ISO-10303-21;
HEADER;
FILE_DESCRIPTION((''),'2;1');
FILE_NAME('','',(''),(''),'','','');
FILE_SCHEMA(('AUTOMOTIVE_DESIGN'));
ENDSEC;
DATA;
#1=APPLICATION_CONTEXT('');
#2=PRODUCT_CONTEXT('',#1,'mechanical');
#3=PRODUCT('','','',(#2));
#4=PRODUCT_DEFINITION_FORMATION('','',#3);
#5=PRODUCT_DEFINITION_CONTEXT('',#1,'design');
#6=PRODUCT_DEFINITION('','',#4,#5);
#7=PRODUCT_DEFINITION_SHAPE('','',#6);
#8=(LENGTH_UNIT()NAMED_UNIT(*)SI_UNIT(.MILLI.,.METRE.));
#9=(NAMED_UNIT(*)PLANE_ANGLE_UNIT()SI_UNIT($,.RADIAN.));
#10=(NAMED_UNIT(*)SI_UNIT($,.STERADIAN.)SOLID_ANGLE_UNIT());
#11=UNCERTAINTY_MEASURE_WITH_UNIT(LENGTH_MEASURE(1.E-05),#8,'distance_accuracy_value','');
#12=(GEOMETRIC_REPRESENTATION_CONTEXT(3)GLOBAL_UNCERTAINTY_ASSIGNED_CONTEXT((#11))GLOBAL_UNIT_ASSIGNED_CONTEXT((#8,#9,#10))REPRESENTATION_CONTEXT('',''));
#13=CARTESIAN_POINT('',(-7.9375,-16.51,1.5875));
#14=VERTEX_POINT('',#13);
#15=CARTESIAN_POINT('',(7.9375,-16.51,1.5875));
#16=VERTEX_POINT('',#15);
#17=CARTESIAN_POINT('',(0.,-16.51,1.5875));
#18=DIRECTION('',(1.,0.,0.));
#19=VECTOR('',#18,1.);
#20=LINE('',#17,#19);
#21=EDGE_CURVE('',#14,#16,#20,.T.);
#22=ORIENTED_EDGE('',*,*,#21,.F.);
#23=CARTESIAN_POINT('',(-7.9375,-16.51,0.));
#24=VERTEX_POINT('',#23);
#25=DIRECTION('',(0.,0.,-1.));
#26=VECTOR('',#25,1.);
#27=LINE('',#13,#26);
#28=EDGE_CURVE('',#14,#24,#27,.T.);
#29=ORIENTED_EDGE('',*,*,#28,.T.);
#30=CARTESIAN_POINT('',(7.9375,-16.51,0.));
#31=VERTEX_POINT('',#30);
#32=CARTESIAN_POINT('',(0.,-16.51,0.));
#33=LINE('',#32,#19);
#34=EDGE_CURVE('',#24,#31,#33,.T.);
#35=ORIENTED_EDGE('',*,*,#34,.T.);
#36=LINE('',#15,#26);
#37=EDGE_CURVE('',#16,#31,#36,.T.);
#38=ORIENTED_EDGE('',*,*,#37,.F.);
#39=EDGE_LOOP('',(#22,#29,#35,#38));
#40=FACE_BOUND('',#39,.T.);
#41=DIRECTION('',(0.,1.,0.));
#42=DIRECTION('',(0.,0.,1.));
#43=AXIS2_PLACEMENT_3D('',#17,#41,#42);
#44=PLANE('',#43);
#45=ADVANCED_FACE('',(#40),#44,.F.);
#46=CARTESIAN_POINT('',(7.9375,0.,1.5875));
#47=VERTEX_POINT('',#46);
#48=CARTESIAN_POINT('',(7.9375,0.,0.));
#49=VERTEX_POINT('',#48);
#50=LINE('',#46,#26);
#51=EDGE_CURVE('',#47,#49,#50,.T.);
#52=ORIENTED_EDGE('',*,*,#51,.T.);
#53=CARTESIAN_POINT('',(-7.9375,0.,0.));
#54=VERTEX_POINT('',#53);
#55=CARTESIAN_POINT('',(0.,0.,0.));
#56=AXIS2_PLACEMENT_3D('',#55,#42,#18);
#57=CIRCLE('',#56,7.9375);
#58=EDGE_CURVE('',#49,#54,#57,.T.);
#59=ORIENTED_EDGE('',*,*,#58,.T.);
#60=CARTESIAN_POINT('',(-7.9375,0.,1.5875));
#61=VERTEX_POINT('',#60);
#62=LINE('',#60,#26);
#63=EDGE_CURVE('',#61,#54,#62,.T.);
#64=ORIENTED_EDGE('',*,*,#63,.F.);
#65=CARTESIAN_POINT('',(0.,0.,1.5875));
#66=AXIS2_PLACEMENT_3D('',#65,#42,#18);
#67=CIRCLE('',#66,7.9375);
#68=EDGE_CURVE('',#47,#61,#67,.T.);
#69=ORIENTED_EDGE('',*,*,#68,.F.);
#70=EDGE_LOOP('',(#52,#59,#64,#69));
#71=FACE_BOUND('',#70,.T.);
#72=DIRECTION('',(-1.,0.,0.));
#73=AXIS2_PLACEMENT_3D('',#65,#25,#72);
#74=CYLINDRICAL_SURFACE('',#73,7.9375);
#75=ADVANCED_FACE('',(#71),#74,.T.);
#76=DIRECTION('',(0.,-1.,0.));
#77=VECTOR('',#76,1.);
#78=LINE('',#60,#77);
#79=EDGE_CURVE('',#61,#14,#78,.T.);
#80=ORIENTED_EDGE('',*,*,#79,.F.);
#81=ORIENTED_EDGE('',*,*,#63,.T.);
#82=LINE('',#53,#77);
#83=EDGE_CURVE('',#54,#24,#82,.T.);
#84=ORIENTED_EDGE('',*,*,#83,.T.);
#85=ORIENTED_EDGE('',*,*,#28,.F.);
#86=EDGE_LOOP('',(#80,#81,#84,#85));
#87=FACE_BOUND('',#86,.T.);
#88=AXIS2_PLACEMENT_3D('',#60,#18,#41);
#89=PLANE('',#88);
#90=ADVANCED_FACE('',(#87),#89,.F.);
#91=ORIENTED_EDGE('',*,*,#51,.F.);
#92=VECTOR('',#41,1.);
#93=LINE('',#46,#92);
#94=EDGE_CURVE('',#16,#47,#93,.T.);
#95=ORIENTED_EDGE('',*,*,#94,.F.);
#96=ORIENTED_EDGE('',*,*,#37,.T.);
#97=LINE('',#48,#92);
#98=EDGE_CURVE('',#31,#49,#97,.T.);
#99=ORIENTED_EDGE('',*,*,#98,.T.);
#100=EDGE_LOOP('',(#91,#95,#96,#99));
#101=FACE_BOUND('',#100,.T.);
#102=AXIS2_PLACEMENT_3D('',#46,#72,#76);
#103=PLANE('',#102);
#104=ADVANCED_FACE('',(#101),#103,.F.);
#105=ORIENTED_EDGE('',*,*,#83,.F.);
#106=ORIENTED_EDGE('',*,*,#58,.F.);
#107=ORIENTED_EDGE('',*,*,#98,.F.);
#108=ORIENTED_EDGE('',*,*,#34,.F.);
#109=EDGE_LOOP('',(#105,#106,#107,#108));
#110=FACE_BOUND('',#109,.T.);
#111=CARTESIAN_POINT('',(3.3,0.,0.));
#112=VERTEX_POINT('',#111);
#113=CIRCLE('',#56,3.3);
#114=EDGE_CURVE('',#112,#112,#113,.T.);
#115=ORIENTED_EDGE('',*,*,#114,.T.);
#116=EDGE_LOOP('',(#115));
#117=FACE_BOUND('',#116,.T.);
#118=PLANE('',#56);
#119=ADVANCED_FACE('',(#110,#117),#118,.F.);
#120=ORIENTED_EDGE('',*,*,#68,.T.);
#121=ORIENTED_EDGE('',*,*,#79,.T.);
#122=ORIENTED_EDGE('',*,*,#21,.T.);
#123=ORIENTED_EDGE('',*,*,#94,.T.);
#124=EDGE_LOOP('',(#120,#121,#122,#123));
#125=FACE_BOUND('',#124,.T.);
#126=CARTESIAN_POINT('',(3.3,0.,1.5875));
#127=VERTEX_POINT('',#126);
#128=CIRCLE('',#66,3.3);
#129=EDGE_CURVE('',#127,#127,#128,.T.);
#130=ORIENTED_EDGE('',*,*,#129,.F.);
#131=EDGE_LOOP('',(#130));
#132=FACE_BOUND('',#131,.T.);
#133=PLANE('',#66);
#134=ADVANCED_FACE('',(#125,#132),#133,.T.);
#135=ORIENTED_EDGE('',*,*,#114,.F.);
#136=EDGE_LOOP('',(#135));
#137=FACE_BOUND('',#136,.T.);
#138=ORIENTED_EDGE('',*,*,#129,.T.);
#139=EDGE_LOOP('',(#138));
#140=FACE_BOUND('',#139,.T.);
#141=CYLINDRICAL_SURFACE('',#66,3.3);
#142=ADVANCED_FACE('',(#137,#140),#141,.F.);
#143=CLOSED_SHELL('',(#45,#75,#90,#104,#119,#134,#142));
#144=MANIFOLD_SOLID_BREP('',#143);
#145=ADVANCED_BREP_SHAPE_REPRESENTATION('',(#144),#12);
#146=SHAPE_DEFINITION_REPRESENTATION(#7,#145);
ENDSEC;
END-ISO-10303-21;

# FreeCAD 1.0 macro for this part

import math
import FreeCAD as App
import Part
import Sketcher
from FreeCAD import Vector
Q = App.Units.Quantity

doc = App.newDocument("Part")
params = doc.addObject("Spreadsheet::Sheet", "Params")
for row, (alias, value) in enumerate([
    ("sketch1_radius", "0.3125 in"),
    ("sketch1_height", "0.65 in"),
    ("pad1_length", "0.0625 in"),
    ("hole_diameter", "6.6 mm"),
], start=1):
    params.set(f"A{row}", alias)
    params.set(f"B{row}", "=" + value)
    params.setAlias(f"B{row}", alias)

body = doc.addObject("PartDesign::Body", "Body")

# Sketch on XY plane
sketch1 = body.newObject("Sketcher::SketchObject", "Sketch")
sketch1.AttachmentSupport = (doc.getObject("XY_Plane"), [""])
sketch1.MapMode = "FlatFace"
sketch1.addGeometry([
    Part.ArcOfCircle(Part.Circle(Vector(0, 0, 0), Vector(0, 0, 1), 8), math.radians(0), math.radians(180)),
    Part.LineSegment(Vector(-8, 0, 0), Vector(-8, -17, 0)),
    Part.LineSegment(Vector(-8, -17, 0), Vector(8, -17, 0)),
    Part.LineSegment(Vector(8, -17, 0), Vector(8, 0, 0)),
], False)
sketch1.addConstraint([
    Sketcher.Constraint("Tangent", 0, 2, 1, 1),
    Sketcher.Constraint("Coincident", 1, 2, 2, 1),
    Sketcher.Constraint("Coincident", 2, 2, 3, 1),
    Sketcher.Constraint("Tangent", 3, 2, 0, 1),
    Sketcher.Constraint("Vertical", 1),
    Sketcher.Constraint("Horizontal", 2),
    Sketcher.Constraint("Vertical", 3),
    Sketcher.Constraint("Coincident", 0, 3, -1, 1),
    Sketcher.Constraint("Radius", 0, Q("0.3125 in")),
    Sketcher.Constraint("DistanceY", 1, 2, 1, 1, Q("0.65 in")),
])
sketch1.setExpression("Constraints[8]", "Params.sketch1_radius")
sketch1.setExpression("Constraints[9]", "Params.sketch1_height")
pad1 = body.newObject("PartDesign::Pad", "Pad")
pad1.Profile = sketch1
pad1.setExpression("Length", "Params.pad1_length")

# Sketch on XY plane
sketch2 = body.newObject("Sketcher::SketchObject", "Sketch001")
sketch2.AttachmentSupport = (doc.getObject("XY_Plane"), [""])
sketch2.MapMode = "FlatFace"
sketch2.AttachmentOffset = App.Placement(Vector(0, 0, 0.0625 * 25.4), App.Rotation())
sketch2.addGeometry(Part.Circle(Vector(0, 0, 0), Vector(0, 0, 1), 3.3), False)
sketch2.addConstraint([
    Sketcher.Constraint("Coincident", 0, 3, -1, 1),
    Sketcher.Constraint("Diameter", 0, 6.6),
])
doc.recompute()
hole = body.newObject("PartDesign::Hole", "Hole")
hole.Profile = sketch2
hole.ThreadType = "None"
hole.setExpression("Diameter", "Params.hole_diameter")
hole.DepthType = "ThroughAll"

doc.recompute()
